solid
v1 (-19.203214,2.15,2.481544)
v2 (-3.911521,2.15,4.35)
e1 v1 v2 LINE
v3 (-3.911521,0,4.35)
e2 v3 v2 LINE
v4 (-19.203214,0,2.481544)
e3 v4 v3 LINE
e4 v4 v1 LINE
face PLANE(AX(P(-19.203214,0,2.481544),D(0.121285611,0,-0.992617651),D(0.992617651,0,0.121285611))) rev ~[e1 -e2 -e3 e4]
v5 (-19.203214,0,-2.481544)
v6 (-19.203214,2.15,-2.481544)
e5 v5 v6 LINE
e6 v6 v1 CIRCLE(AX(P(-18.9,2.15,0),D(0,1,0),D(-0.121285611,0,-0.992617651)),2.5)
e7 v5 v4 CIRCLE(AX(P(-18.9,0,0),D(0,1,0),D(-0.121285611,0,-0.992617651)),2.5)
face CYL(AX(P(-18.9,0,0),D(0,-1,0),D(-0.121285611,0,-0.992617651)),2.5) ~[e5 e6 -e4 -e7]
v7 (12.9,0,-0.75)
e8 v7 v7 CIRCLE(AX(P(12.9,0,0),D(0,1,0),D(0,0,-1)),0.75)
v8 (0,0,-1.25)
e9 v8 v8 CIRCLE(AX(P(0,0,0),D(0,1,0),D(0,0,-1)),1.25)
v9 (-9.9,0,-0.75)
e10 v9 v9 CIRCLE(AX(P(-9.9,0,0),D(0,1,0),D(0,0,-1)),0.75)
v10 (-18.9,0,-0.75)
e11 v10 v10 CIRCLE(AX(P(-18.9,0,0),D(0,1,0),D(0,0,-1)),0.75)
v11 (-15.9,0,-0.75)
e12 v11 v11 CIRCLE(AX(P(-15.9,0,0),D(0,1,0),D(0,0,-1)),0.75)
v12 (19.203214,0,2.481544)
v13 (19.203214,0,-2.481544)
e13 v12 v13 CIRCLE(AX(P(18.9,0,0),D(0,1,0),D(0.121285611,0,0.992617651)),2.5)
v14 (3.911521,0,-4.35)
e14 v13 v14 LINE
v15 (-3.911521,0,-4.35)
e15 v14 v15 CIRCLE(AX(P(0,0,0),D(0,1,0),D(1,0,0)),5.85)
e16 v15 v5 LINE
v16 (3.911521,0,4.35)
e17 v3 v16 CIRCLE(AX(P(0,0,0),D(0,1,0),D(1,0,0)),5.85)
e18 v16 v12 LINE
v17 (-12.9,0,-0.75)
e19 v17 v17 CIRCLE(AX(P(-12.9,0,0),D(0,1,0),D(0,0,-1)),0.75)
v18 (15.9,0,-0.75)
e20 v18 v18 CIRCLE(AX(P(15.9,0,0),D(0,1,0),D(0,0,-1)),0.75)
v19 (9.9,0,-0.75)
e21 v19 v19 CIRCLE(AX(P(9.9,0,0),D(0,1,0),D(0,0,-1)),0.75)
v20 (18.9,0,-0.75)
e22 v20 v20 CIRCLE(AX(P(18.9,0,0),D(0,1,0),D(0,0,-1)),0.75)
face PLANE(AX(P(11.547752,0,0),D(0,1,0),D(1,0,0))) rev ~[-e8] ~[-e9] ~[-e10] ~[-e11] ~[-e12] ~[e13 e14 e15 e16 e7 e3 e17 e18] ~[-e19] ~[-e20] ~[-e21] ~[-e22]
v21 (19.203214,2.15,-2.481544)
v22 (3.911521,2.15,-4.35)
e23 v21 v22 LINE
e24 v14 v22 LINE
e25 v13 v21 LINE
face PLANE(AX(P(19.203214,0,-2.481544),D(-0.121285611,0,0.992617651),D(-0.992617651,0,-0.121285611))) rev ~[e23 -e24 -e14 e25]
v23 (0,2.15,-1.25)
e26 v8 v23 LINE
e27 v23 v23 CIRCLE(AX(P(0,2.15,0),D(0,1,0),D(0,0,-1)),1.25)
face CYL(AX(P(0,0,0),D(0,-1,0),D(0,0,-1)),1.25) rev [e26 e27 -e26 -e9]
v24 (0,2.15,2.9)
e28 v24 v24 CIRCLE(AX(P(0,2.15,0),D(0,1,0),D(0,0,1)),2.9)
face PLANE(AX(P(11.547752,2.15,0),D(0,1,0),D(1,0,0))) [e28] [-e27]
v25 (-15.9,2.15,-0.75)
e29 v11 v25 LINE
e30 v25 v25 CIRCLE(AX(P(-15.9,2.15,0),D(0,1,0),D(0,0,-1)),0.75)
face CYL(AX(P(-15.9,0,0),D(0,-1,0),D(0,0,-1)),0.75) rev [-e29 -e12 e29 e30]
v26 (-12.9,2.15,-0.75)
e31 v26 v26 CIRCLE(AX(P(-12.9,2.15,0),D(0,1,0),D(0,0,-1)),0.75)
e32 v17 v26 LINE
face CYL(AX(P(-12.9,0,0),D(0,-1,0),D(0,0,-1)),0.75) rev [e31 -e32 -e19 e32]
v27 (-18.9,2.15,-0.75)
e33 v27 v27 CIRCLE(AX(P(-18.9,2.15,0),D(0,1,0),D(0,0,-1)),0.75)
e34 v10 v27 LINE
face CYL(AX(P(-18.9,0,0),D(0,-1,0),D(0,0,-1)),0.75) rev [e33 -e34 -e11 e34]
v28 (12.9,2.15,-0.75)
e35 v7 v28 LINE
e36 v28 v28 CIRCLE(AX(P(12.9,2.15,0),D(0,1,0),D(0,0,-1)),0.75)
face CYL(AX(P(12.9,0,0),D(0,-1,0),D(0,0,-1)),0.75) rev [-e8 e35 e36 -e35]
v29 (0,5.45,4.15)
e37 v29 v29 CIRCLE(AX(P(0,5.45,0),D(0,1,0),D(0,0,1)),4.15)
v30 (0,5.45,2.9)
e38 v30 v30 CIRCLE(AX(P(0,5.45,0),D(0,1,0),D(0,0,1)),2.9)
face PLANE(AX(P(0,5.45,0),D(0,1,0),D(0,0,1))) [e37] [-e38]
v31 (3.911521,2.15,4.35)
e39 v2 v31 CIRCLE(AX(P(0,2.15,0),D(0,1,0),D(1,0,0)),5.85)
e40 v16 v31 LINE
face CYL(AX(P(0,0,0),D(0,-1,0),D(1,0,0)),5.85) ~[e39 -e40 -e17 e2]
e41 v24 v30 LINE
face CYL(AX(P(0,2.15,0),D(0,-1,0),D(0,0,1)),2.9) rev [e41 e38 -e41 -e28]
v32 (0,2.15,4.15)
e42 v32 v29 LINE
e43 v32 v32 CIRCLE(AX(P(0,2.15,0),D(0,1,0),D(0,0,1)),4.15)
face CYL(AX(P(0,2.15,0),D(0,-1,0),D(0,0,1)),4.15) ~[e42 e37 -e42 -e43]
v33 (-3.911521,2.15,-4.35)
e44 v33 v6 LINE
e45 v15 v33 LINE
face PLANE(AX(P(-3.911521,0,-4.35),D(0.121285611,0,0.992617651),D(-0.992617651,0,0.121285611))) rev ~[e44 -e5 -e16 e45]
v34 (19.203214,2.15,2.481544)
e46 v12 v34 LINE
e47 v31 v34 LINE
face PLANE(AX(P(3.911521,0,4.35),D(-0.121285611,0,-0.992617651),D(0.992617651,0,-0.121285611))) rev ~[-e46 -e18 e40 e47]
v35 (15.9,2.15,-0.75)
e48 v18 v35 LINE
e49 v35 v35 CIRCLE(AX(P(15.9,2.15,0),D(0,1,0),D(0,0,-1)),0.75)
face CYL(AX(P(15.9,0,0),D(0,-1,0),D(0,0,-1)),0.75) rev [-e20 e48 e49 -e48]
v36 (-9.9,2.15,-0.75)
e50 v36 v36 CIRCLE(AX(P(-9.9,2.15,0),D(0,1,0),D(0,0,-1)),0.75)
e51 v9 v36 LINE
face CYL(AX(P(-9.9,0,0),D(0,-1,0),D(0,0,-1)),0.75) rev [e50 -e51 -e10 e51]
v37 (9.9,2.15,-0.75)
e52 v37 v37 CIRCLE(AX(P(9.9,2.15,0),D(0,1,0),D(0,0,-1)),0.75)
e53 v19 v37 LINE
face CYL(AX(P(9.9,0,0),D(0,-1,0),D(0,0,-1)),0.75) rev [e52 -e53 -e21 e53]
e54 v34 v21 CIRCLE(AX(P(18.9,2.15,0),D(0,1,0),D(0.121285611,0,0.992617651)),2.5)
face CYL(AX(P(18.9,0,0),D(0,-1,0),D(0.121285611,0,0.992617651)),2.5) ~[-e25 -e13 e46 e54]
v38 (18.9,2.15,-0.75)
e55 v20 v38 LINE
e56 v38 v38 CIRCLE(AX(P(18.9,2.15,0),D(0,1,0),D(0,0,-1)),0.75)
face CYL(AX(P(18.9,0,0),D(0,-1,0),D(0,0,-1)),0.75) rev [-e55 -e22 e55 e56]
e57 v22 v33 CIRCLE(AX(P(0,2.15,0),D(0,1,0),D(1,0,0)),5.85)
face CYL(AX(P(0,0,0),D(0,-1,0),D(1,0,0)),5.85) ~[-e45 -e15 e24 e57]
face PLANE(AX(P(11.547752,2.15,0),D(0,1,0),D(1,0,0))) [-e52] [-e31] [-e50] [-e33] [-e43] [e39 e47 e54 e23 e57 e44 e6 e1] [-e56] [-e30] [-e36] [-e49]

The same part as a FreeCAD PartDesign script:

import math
import FreeCAD as App
import Part
import Sketcher

doc = App.newDocument("Part")
body = doc.addObject("PartDesign::Body", "Body")

# Sketch on XZ plane
sketch1 = body.newObject("Sketcher::SketchObject", "Sketch")
sketch1.AttachmentSupport = (doc.getObject("XZ_Plane"), [""])
sketch1.MapMode = "FlatFace"
sketch1.addGeometry(Part.ArcOfCircle(Part.Circle(App.Vector(0, 0, 0), App.Vector(0, 0, 1), 5.8), math.radians(-132), math.radians(-48)), False)
sketch1.addGeometry(Part.LineSegment(App.Vector(-3.9, -4.3, 0), App.Vector(-19.2, -2.5, 0)), False)
sketch1.addGeometry(Part.ArcOfCircle(Part.Circle(App.Vector(-18.9, 0, 0), App.Vector(0, 0, 1), 2.5), math.radians(97), math.radians(263)), False)
sketch1.addGeometry(Part.LineSegment(App.Vector(-19.2, 2.5, 0), App.Vector(-3.9, 4.3, 0)), False)
sketch1.addGeometry(Part.ArcOfCircle(Part.Circle(App.Vector(0, 0, 0), App.Vector(0, 0, 1), 5.8), math.radians(48), math.radians(132)), False)
sketch1.addGeometry(Part.LineSegment(App.Vector(3.9, 4.3, 0), App.Vector(19.2, 2.5, 0)), False)
sketch1.addGeometry(Part.ArcOfCircle(Part.Circle(App.Vector(18.9, 0, 0), App.Vector(0, 0, 1), 2.5), math.radians(-83), math.radians(83)), False)
sketch1.addGeometry(Part.LineSegment(App.Vector(19.2, -2.5, 0), App.Vector(3.9, -4.3, 0)), False)
sketch1.addGeometry(Part.Circle(App.Vector(0, 0, 0), App.Vector(0, 0, 1), 1.2), False)
sketch1.addGeometry(Part.Circle(App.Vector(18.9, 0, 0), App.Vector(0, 0, 1), 0.8), False)
sketch1.addGeometry(Part.Circle(App.Vector(15.9, 0, 0), App.Vector(0, 0, 1), 0.8), False)
sketch1.addGeometry(Part.Circle(App.Vector(9.9, 0, 0), App.Vector(0, 0, 1), 0.8), False)
sketch1.addGeometry(Part.Circle(App.Vector(12.9, 0, 0), App.Vector(0, 0, 1), 0.8), False)
sketch1.addGeometry(Part.Circle(App.Vector(-9.9, 0, 0), App.Vector(0, 0, 1), 0.8), False)
sketch1.addGeometry(Part.Circle(App.Vector(-18.9, 0, 0), App.Vector(0, 0, 1), 0.8), False)
sketch1.addGeometry(Part.Circle(App.Vector(-15.9, 0, 0), App.Vector(0, 0, 1), 0.8), False)
sketch1.addGeometry(Part.Circle(App.Vector(-12.9, 0, 0), App.Vector(0, 0, 1), 0.8), False)
sketch1.addConstraint(Sketcher.Constraint("Coincident", 0, 1, 1, 1))
sketch1.addConstraint(Sketcher.Constraint("Tangent", 1, 2, 2, 2))
sketch1.addConstraint(Sketcher.Constraint("Tangent", 2, 1, 3, 1))
sketch1.addConstraint(Sketcher.Constraint("Coincident", 3, 2, 4, 2))
sketch1.addConstraint(Sketcher.Constraint("Coincident", 4, 1, 5, 1))
sketch1.addConstraint(Sketcher.Constraint("Tangent", 5, 2, 6, 2))
sketch1.addConstraint(Sketcher.Constraint("Tangent", 6, 1, 7, 1))
sketch1.addConstraint(Sketcher.Constraint("Coincident", 7, 2, 0, 2))
sketch1.addConstraint(Sketcher.Constraint("Coincident", 0, 3, -1, 1))
sketch1.addConstraint(Sketcher.Constraint("Coincident", 4, 3, -1, 1))
sketch1.addConstraint(Sketcher.Constraint("Coincident", 8, 3, -1, 1))
sketch1.addConstraint(Sketcher.Constraint("Coincident", 9, 3, 6, 3))
sketch1.addConstraint(Sketcher.Constraint("Coincident", 14, 3, 2, 3))
sketch1.addConstraint(Sketcher.Constraint("Equal", 0, 4))
sketch1.addConstraint(Sketcher.Constraint("Equal", 2, 6))
sketch1.addConstraint(Sketcher.Constraint("Equal", 9, 10))
sketch1.addConstraint(Sketcher.Constraint("Equal", 10, 11))
sketch1.addConstraint(Sketcher.Constraint("Equal", 11, 12))
sketch1.addConstraint(Sketcher.Constraint("Equal", 12, 13))
sketch1.addConstraint(Sketcher.Constraint("Equal", 13, 14))
sketch1.addConstraint(Sketcher.Constraint("Equal", 14, 15))
sketch1.addConstraint(Sketcher.Constraint("Equal", 15, 16))
sketch1.addConstraint(Sketcher.Constraint("Symmetric", 2, 3, 6, 3, -1, 1))
sketch1.addConstraint(Sketcher.Constraint("Symmetric", 11, 3, 13, 3, -1, 1))
sketch1.addConstraint(Sketcher.Constraint("Symmetric", 10, 3, 15, 3, -1, 1))
sketch1.addConstraint(Sketcher.Constraint("Symmetric", 12, 3, 16, 3, -1, 1))
sketch1.addConstraint(Sketcher.Constraint("Symmetric", 2, 1, 5, 2, -2))
sketch1.addConstraint(Sketcher.Constraint("PointOnObject", 10, 3, -1))
sketch1.addConstraint(Sketcher.Constraint("PointOnObject", 11, 3, -1))
sketch1.addConstraint(Sketcher.Constraint("PointOnObject", 12, 3, -1))
sketch1.addConstraint(Sketcher.Constraint("Parallel", 1, 5))
sketch1.addConstraint(Sketcher.Constraint("Parallel", 3, 7))
sketch1.addConstraint(Sketcher.Constraint("Diameter", 8, 2.5))
sketch1.addConstraint(Sketcher.Constraint("Diameter", 9, 1.5))
sketch1.addConstraint(Sketcher.Constraint("Radius", 2, 2.5))
sketch1.addConstraint(Sketcher.Constraint("Radius", 0, 5.85))
sketch1.addConstraint(Sketcher.Constraint("DistanceX", 10, 3, 6, 3, 3.0))
sketch1.addConstraint(Sketcher.Constraint("DistanceX", 11, 3, 10, 3, 6.0))
sketch1.addConstraint(Sketcher.Constraint("DistanceX", 12, 3, 10, 3, 3.0))
sketch1.addConstraint(Sketcher.Constraint("DistanceX", 2, 3, -1, 1, 18.9))
sketch1.addConstraint(Sketcher.Constraint("DistanceY", 0, 1, 3, 2, 8.7))
pad1 = body.newObject("PartDesign::Pad", "Pad")
pad1.Profile = sketch1
pad1.Length = 2.15
pad1.Reversed = True

# Sketch on XZ plane
sketch2 = body.newObject("Sketcher::SketchObject", "Sketch001")
sketch2.AttachmentSupport = (doc.getObject("XZ_Plane"), [""])
sketch2.MapMode = "FlatFace"
sketch2.AttachmentOffset = App.Placement(App.Vector(0, 0, -2.15), App.Rotation())
sketch2.addGeometry(Part.Circle(App.Vector(0, 0, 0), App.Vector(0, 0, 1), 4.2), False)
sketch2.addGeometry(Part.Circle(App.Vector(0, 0, 0), App.Vector(0, 0, 1), 2.9), False)
sketch2.addConstraint(Sketcher.Constraint("Coincident", 0, 3, -1, 1))
sketch2.addConstraint(Sketcher.Constraint("Coincident", 1, 3, -1, 1))
sketch2.addConstraint(Sketcher.Constraint("Diameter", 0, 8.3))
sketch2.addConstraint(Sketcher.Constraint("Diameter", 1, 5.8))
pad2 = body.newObject("PartDesign::Pad", "Pad001")
pad2.Profile = sketch2
pad2.Length = 3.3
pad2.Reversed = True

doc.recompute()
